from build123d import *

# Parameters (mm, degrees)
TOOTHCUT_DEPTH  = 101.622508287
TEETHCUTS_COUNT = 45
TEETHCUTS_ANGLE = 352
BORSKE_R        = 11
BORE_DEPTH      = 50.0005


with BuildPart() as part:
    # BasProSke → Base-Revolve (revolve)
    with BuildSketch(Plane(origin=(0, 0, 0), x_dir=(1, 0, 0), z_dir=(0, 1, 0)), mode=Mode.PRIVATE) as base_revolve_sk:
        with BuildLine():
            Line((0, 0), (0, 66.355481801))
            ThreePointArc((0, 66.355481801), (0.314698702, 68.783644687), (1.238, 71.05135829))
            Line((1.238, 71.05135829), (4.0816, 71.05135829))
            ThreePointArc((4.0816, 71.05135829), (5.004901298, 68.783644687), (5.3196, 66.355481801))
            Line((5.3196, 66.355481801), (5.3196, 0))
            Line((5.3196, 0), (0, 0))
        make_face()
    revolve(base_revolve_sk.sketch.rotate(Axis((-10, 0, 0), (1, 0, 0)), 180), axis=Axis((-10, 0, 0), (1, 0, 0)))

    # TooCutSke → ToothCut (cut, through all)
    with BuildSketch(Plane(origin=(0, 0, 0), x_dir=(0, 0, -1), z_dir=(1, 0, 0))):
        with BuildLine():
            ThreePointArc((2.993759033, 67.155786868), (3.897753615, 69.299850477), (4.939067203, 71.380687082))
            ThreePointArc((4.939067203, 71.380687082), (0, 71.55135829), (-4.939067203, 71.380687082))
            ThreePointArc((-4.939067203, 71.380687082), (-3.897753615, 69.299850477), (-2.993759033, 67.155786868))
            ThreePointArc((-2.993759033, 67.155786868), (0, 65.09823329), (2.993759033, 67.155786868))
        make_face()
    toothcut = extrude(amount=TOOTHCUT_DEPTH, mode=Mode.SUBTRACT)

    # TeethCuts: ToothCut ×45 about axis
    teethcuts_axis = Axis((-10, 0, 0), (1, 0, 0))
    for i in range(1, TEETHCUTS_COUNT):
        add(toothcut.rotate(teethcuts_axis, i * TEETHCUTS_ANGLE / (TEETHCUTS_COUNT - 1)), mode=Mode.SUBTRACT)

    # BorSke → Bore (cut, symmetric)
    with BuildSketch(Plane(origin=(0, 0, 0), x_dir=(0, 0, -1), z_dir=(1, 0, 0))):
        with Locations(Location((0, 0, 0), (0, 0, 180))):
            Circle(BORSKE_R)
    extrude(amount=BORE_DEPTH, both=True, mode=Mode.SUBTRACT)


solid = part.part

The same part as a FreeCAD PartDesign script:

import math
import FreeCAD as App
import Part
import Sketcher
Q = App.Units.Quantity

doc = App.newDocument("Part")
body = doc.addObject("PartDesign::Body", "Body")

# Sketch on XZ plane
sketch1 = body.newObject("Sketcher::SketchObject", "Sketch")
sketch1.AttachmentSupport = (doc.getObject("XZ_Plane"), [""])
sketch1.MapMode = "FlatFace"
sketch1.addGeometry([
    Part.LineSegment(App.Vector(0, -66.4, 0), App.Vector(0, 0, 0)),  # 0
    Part.LineSegment(App.Vector(0, 0, 0), App.Vector(5.3, 0, 0)),  # 1
    Part.LineSegment(App.Vector(5.3, 0, 0), App.Vector(5.3, -66.4, 0)),  # 2
    Part.ArcOfCircle(Part.Circle(App.Vector(-4.2, -66.4, 0), App.Vector(0, 0, 1), 9.5), math.radians(-30), math.radians(0)),  # 3
    Part.LineSegment(App.Vector(4.1, -71.1, 0), App.Vector(1.2, -71.1, 0)),  # 4
    Part.ArcOfCircle(Part.Circle(App.Vector(9.5, -66.4, 0), App.Vector(0, 0, 1), 9.5), math.radians(180), math.radians(210)),  # 5
], False)
sketch1.addConstraint([
    Sketcher.Constraint("Coincident", 0, 2, 1, 1),
    Sketcher.Constraint("Coincident", 1, 2, 2, 1),
    Sketcher.Constraint("Tangent", 2, 2, 3, 2),
    Sketcher.Constraint("Coincident", 3, 1, 4, 1),
    Sketcher.Constraint("Coincident", 4, 2, 5, 2),
    Sketcher.Constraint("Tangent", 5, 1, 0, 1),
    Sketcher.Constraint("Vertical", 0),
    Sketcher.Constraint("Horizontal", 1),
    Sketcher.Constraint("Vertical", 2),
    Sketcher.Constraint("Horizontal", 4),
    Sketcher.Constraint("Coincident", 0, 2, -1, 1),
    Sketcher.Constraint("Equal", 3, 5),
    Sketcher.Constraint("Horizontal", 3, 3, 5, 3),
    Sketcher.Constraint("Radius", 3, Q("0.375 in")),
    Sketcher.Constraint("DistanceX", 1, 1, 1, 2, 5.3196),
    Sketcher.Constraint("DistanceX", 4, 2, 4, 1, 2.8436),
    Sketcher.Constraint("DistanceY", 0, 1, 0, 2, 66.355482),
])
revolution = body.newObject("PartDesign::Revolution", "Revolution")
revolution.Profile = sketch1
revolution.ReferenceAxis = (sketch1, ["H_Axis"])
revolution.Angle = 360

# Sketch on YZ plane
sketch2 = body.newObject("Sketcher::SketchObject", "Sketch001")
sketch2.AttachmentSupport = (doc.getObject("YZ_Plane"), [""])
sketch2.MapMode = "FlatFace"
sketch2.addGeometry([
    Part.ArcOfCircle(Part.Circle(App.Vector(54.3, -36.4, 0), App.Vector(0, 0, 1), 35.8), math.radians(61.55), math.radians(69)),
    Part.ArcOfCircle(Part.Circle(App.Vector(0, 0, 0), App.Vector(0, 0, 1), 71.6), math.radians(-3.96), math.radians(3.96)),
    Part.ArcOfCircle(Part.Circle(App.Vector(54.3, 36.4, 0), App.Vector(0, 0, 1), 35.8), math.radians(-69), math.radians(-61.55)),
    Part.ArcOfCircle(Part.Circle(App.Vector(68.3, 0, 0), App.Vector(0, 0, 1), 3.2), math.radians(111), math.radians(249)),
], False)
sketch2.addConstraint([
    Sketcher.Constraint("Coincident", 0, 1, 1, 1),
    Sketcher.Constraint("Coincident", 1, 2, 2, 2),
    Sketcher.Constraint("Tangent", 2, 1, 3, 1),
    Sketcher.Constraint("Tangent", 3, 2, 0, 2),
    Sketcher.Constraint("Coincident", 1, 3, -1, 1),
    Sketcher.Constraint("Equal", 0, 2),
    Sketcher.Constraint("Symmetric", 0, 3, 2, 3, -1),
    Sketcher.Constraint("Radius", 0, Q("1.41 in")),
    Sketcher.Constraint("Radius", 1, 71.551358),
    Sketcher.Constraint("Radius", 3, 3.20675),
    Sketcher.Constraint("DistanceX", 2, 1, 1, 2, 4.2249),
    Sketcher.Constraint("DistanceY", 0, 3, -1, 1, 36.429009),
])
pocket1 = body.newObject("PartDesign::Pocket", "Pocket")
pocket1.Profile = sketch2
pocket1.Type = "ThroughAll"
pocket1.Reversed = True
doc.recompute()

polarpattern = body.newObject("PartDesign::PolarPattern", "PolarPattern")
polarpattern.Originals = [pocket1]
polarpattern.Axis = (doc.getObject("X_Axis"), [""])
polarpattern.Angle = 360
polarpattern.Occurrences = 45
body.Tip = polarpattern

# Sketch on YZ plane
sketch3 = body.newObject("Sketcher::SketchObject", "Sketch002")
sketch3.AttachmentSupport = (doc.getObject("YZ_Plane"), [""])
sketch3.MapMode = "FlatFace"
sketch3.addGeometry(Part.Circle(App.Vector(0, 0, 0), App.Vector(0, 0, 1), 11), False)
sketch3.addConstraint([
    Sketcher.Constraint("Coincident", 0, 3, -1, 1),
    Sketcher.Constraint("Diameter", 0, 22.0),
])
pocket2 = body.newObject("PartDesign::Pocket", "Pocket001")
pocket2.Profile = sketch3
pocket2.Length = 100.001
pocket2.Midplane = True

doc.recompute()
